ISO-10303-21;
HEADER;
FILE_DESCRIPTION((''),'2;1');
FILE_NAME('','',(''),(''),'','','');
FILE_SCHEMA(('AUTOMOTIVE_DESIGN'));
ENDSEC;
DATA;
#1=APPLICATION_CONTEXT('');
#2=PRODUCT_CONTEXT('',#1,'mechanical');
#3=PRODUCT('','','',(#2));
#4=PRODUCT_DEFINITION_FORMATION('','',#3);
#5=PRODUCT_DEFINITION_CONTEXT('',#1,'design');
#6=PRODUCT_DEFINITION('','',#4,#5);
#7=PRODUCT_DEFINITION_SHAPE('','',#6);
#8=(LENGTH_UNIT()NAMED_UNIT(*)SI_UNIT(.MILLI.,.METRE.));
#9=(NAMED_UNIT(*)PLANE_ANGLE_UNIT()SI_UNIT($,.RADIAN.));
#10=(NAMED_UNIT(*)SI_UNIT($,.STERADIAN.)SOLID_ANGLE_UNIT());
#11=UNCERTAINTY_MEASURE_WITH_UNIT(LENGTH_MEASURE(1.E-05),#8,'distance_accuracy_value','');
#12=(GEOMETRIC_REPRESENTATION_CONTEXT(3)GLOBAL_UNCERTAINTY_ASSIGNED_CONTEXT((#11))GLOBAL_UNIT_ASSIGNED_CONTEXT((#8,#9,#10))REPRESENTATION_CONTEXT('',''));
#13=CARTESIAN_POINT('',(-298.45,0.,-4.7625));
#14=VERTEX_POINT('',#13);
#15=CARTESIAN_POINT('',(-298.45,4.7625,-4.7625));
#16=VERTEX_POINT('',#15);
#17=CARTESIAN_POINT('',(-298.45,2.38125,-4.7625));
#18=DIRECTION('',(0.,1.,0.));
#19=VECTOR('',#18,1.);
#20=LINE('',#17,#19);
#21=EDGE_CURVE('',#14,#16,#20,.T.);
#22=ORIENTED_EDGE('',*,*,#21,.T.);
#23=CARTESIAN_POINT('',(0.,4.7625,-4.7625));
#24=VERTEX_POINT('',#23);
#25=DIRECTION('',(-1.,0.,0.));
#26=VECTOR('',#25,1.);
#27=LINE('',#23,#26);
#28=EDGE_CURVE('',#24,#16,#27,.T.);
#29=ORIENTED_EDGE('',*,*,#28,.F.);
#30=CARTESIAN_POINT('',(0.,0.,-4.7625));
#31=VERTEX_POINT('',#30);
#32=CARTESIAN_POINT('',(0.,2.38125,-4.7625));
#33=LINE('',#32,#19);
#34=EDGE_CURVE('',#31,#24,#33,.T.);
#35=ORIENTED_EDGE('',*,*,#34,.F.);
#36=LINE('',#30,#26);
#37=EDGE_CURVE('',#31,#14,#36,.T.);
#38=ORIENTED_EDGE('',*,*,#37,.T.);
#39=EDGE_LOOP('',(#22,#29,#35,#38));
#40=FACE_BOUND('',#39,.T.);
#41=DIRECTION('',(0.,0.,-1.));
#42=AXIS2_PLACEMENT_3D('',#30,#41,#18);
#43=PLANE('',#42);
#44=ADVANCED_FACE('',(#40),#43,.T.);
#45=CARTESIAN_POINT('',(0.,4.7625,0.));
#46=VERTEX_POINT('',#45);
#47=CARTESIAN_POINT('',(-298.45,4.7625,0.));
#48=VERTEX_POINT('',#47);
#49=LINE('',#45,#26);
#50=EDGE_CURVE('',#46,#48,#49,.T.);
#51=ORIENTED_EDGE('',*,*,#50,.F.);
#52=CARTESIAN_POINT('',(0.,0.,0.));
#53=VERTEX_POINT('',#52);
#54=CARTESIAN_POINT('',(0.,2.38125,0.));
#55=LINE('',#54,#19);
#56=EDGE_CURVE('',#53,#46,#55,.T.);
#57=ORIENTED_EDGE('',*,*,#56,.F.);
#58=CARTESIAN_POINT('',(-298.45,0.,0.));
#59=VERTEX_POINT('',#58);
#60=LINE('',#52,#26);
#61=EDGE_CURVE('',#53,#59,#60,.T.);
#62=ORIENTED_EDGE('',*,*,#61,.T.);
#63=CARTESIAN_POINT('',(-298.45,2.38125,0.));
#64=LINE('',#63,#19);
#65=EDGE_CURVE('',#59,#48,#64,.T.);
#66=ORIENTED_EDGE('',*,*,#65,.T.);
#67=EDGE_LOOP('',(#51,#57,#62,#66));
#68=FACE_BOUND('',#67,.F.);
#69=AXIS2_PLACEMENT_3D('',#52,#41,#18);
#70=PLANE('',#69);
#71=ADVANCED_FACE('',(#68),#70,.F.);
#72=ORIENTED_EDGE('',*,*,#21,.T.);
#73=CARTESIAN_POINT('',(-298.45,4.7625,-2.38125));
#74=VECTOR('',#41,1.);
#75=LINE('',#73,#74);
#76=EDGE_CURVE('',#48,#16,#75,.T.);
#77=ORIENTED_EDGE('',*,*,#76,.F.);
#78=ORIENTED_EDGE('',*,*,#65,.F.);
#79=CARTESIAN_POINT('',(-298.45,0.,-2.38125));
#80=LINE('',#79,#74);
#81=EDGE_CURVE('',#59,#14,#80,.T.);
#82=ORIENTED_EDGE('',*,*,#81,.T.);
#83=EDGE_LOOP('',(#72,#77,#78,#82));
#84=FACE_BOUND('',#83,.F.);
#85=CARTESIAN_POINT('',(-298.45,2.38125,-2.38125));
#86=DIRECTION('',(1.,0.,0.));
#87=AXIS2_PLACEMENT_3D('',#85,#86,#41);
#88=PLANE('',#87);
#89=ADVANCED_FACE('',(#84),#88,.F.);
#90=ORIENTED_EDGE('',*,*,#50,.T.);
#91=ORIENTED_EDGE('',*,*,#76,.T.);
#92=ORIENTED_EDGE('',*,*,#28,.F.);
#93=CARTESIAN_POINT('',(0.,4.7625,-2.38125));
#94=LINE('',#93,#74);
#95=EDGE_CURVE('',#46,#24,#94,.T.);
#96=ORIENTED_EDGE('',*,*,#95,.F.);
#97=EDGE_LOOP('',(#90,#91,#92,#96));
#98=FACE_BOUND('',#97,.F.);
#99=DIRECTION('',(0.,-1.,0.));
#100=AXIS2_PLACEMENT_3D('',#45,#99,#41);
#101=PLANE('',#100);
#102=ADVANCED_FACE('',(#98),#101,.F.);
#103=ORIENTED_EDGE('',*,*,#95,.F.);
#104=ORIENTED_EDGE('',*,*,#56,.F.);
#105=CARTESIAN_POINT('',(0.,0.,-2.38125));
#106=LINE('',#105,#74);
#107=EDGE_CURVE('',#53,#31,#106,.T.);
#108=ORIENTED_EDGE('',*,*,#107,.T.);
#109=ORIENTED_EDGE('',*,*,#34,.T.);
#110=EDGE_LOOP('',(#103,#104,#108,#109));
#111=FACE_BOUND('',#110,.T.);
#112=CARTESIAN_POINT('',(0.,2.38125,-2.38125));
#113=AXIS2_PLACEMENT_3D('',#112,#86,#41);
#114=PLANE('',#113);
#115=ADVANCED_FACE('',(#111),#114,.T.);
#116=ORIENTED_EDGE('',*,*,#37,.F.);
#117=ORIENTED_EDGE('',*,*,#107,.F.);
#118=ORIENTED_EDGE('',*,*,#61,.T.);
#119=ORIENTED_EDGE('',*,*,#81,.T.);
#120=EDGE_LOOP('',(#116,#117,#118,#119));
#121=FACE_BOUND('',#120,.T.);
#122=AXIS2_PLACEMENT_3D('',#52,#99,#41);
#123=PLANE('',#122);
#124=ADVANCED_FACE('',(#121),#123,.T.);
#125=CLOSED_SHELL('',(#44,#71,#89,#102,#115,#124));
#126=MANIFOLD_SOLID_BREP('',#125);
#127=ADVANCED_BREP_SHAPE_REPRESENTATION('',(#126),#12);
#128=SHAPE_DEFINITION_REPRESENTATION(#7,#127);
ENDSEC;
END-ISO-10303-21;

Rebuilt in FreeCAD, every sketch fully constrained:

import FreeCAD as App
import Part
import Sketcher
from FreeCAD import Vector
Q = App.Units.Quantity


def add_polygon(sketch, points):
    """Adds a closed chain of lines whose ends are joined by coincident constraints."""
    first, n = sketch.GeometryCount, len(points)
    for a, b in zip(points, points[1:] + points[:1]):
        sketch.addGeometry(Part.LineSegment(App.Vector(*a, 0), App.Vector(*b, 0)), False)
    for i in range(n):
        sketch.addConstraint(Sketcher.Constraint("Coincident", first + i, 2, first + (i + 1) % n, 1))

doc = App.newDocument("Part")
body = doc.addObject("PartDesign::Body", "Body")

sketch1 = body.newObject("Sketcher::SketchObject", "Sketch")
sketch1.AttachmentSupport = (doc.getObject("YZ_Plane"), [""])
sketch1.MapMode = "FlatFace"
add_polygon(sketch1, [(4.8, 0), (0, 0), (0, -4.8), (4.8, -4.8)])
sketch1.addConstraint(Sketcher.Constraint("Horizontal", 0))
sketch1.addConstraint(Sketcher.Constraint("Vertical", 1))
sketch1.addConstraint(Sketcher.Constraint("Horizontal", 2))
sketch1.addConstraint(Sketcher.Constraint("Vertical", 3))
sketch1.addConstraint(Sketcher.Constraint("Coincident", 0, 2, -1, 1))
sketch1.addConstraint(Sketcher.Constraint("Equal", 2, 1))
sketch1.addConstraint(Sketcher.Constraint("DistanceX", 0, 2, 0, 1, Q("0.1875 in")))
pad1 = body.newObject("PartDesign::Pad", "Pad")
pad1.Profile = sketch1
pad1.Length = Q("11.75 in")
pad1.Reversed = True

doc.recompute()
